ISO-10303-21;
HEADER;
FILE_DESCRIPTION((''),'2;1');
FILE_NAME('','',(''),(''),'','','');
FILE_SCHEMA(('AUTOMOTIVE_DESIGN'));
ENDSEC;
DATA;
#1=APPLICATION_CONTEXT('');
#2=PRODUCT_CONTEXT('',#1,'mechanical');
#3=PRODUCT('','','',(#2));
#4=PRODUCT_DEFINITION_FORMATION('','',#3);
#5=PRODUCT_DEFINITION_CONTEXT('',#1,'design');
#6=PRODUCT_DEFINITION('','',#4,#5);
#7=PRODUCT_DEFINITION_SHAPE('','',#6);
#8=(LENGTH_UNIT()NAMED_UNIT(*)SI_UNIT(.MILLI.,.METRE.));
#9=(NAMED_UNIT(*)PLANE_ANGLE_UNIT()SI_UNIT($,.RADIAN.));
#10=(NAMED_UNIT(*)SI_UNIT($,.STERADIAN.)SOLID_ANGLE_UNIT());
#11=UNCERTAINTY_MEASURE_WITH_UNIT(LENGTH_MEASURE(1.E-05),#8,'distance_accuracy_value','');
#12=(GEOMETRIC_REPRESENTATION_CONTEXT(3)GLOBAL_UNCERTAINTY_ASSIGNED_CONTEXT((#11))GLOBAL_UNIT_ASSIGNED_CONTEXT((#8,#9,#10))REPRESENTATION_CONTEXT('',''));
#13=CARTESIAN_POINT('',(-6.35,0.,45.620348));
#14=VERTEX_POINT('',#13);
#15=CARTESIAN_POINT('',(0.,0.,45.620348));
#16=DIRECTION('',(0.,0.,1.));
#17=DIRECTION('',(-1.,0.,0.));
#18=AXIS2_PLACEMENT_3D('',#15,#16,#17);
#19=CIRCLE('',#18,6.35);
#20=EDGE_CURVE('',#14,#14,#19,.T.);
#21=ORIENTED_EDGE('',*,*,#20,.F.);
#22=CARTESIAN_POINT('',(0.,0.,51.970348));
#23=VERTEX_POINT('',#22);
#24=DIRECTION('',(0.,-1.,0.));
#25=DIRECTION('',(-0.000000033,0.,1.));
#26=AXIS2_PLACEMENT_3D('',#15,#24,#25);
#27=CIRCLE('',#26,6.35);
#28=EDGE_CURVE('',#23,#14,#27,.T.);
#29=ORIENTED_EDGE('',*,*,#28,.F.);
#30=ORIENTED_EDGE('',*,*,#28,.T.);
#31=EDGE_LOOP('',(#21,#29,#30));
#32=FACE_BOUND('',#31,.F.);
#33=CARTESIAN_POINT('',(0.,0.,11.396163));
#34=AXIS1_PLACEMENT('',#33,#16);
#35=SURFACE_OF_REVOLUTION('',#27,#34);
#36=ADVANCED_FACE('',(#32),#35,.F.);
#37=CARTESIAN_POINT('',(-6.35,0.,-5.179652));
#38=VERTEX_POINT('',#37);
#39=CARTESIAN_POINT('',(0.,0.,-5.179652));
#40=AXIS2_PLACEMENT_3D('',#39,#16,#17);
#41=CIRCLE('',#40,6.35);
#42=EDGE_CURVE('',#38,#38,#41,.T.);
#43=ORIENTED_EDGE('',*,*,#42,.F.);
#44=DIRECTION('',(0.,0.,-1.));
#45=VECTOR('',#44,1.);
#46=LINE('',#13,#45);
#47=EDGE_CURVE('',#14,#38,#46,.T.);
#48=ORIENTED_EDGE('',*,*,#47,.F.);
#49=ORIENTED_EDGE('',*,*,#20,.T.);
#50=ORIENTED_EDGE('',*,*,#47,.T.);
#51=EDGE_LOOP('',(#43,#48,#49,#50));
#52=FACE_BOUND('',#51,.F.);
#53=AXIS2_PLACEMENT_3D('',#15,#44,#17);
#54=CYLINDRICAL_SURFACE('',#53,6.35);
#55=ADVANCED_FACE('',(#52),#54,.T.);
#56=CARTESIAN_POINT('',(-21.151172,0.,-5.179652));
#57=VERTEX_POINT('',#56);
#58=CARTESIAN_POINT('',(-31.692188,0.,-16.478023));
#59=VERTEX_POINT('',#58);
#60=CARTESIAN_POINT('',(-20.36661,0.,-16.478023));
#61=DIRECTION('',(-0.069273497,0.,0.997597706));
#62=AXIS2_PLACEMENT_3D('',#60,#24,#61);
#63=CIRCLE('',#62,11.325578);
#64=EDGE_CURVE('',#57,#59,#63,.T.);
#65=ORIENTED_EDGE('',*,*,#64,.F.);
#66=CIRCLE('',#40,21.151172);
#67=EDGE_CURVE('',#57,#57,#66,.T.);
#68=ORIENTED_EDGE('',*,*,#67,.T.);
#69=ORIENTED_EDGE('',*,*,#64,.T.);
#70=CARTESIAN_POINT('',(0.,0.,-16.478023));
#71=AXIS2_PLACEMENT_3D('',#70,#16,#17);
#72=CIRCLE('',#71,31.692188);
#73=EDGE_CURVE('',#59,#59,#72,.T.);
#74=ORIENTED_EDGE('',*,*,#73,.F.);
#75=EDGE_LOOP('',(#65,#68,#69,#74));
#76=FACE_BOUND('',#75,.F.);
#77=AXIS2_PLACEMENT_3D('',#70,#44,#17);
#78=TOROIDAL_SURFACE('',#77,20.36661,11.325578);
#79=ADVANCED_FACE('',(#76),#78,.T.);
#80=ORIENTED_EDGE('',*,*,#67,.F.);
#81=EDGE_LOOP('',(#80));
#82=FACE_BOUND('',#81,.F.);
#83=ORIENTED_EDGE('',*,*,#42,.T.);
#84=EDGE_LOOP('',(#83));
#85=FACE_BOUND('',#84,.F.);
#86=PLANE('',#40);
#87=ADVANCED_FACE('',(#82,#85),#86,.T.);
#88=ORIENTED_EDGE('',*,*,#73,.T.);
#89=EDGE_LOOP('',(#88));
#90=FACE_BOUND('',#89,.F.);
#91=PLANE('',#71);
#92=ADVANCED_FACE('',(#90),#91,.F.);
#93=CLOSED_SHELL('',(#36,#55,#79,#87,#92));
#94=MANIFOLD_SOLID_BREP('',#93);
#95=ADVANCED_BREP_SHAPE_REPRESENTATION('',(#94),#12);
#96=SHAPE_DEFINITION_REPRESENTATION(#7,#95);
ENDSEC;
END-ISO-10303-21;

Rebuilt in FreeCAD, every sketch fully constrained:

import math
import FreeCAD as App
import Part
import Sketcher

V = App.Vector
Q = App.Units.Quantity

doc = App.newDocument("Part")
params = doc.addObject("Spreadsheet::Sheet", "Params")
for row, (alias, value) in enumerate([
    ("sketch1_height", "2 in"),
    ("sketch1_radius", "0.25 in"),
    ("revolution_angle", "360 deg"),
], start=1):
    params.set(f"A{row}", alias)
    params.set(f"B{row}", "=" + value)
    params.setAlias(f"B{row}", alias)

body = doc.addObject("PartDesign::Body", "Body")

sketch1 = body.newObject("Sketcher::SketchObject", "Sketch")
sketch1.AttachmentSupport = (doc.getObject("XZ_Plane"), [""])
sketch1.MapMode = "FlatFace"
sketch1.addGeometry([
    Part.LineSegment(V(-6, -5, 0), V(-21, -5, 0)),
    Part.ArcOfCircle(Part.Circle(V(-20, -16, 0), V(0, 0, 1), 11), math.radians(94), math.radians(180)),
    Part.LineSegment(V(-32, -16, 0), V(0, -16, 0)),
    Part.LineSegment(V(0, -16, 0), V(0, 52, 0)),
    Part.ArcOfCircle(Part.Circle(V(0, 46, 0), V(0, 0, 1), 6), math.radians(90), math.radians(180)),
    Part.LineSegment(V(-6, 46, 0), V(-6, -5, 0)),
], False)
sketch1.addConstraint([
    Sketcher.Constraint("Coincident", 0, 2, 1, 1),
    Sketcher.Constraint("Coincident", 1, 2, 2, 1),
    Sketcher.Constraint("Coincident", 2, 2, 3, 1),
    Sketcher.Constraint("Coincident", 3, 2, 4, 1),
    Sketcher.Constraint("Tangent", 4, 2, 5, 1),
    Sketcher.Constraint("Coincident", 5, 2, 0, 1),
    Sketcher.Constraint("Horizontal", 0),
    Sketcher.Constraint("Horizontal", 2),
    Sketcher.Constraint("Vertical", 3),
    Sketcher.Constraint("Vertical", 5),
    Sketcher.Constraint("PointOnObject", 4, 3, -2),
    Sketcher.Constraint("PointOnObject", 2, 2, -2),
    Sketcher.Constraint("DistanceY", 5, 2, 5, 1, Q("2 in")),
    Sketcher.Constraint("Radius", 4, Q("0.25 in")),
    Sketcher.Constraint("Radius", 1, 11.325578),
    Sketcher.Constraint("DistanceX", 0, 2, 0, 1, 14.801172),
    Sketcher.Constraint("DistanceX", 2, 1, 2, 2, 31.692188),
    Sketcher.Constraint("DistanceY", 3, 1, 3, 2, 68.448371),
    Sketcher.Constraint("DistanceY", 1, 3, -1, 1, 16.478023),
])
sketch1.setExpression("Constraints[12]", "Params.sketch1_height")
sketch1.setExpression("Constraints[13]", "Params.sketch1_radius")
revolution = body.newObject("PartDesign::Revolution", "Revolution")
revolution.Profile = sketch1
revolution.ReferenceAxis = (sketch1, ["V_Axis"])
revolution.setExpression("Angle", "Params.revolution_angle")

doc.recompute()
